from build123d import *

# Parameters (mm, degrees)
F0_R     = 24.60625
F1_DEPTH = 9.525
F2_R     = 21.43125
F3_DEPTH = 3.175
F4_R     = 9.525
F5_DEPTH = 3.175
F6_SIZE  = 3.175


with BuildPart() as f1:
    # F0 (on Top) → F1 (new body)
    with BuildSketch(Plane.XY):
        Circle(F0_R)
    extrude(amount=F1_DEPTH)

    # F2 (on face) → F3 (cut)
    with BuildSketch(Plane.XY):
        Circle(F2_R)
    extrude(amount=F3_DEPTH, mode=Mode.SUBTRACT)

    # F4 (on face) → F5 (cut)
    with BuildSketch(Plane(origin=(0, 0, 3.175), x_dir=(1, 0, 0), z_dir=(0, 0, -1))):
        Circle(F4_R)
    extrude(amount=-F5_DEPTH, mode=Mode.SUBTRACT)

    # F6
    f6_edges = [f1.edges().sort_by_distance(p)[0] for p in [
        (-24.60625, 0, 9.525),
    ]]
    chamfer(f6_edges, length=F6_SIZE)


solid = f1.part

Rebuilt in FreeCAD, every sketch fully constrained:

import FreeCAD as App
import Part
import Sketcher
from FreeCAD import Vector
Q = App.Units.Quantity


def edges_at(feature, points):
    """Names of the edges that pass closest to the given points."""
    edges = feature.Shape.Edges
    near = lambda p: min(range(len(edges)), key=lambda i: edges[i].distToShape(Part.Vertex(*p))[0])
    return sorted({f"Edge{near(p) + 1}" for p in points})

doc = App.newDocument("Part")
body = doc.addObject("PartDesign::Body", "Body")

# Sketch on XY plane
sketch1 = body.newObject("Sketcher::SketchObject", "Sketch")
sketch1.AttachmentSupport = (doc.getObject("XY_Plane"), [""])
sketch1.MapMode = "FlatFace"
sketch1.addGeometry(Part.Circle(Vector(0, 0, 0), Vector(0, 0, 1), 25), False)
sketch1.addConstraint([
    Sketcher.Constraint("Coincident", 0, 3, -1, 1),
    Sketcher.Constraint("Diameter", 0, Q("1.9375 in")),
])
pad1 = body.newObject("PartDesign::Pad", "Pad")
pad1.Profile = sketch1
pad1.Length = Q("0.375 in")

# Sketch on XY plane
sketch2 = body.newObject("Sketcher::SketchObject", "Sketch001")
sketch2.AttachmentSupport = (doc.getObject("XY_Plane"), [""])
sketch2.MapMode = "FlatFace"
sketch2.addGeometry(Part.Circle(Vector(0, 0, 0), Vector(0, 0, 1), 21), False)
sketch2.addConstraint([
    Sketcher.Constraint("Coincident", 0, 3, -1, 1),
    Sketcher.Constraint("Diameter", 0, Q("1.6875 in")),
])
pocket1 = body.newObject("PartDesign::Pocket", "Pocket")
pocket1.Profile = sketch2
pocket1.Length = Q("0.125 in")
pocket1.Reversed = True

# Sketch on XY plane
sketch3 = body.newObject("Sketcher::SketchObject", "Sketch002")
sketch3.AttachmentSupport = (doc.getObject("XY_Plane"), [""])
sketch3.MapMode = "FlatFace"
sketch3.AttachmentOffset = App.Placement(Vector(0, 0, 0.125 * 25.4), App.Rotation())
sketch3.addGeometry(Part.Circle(Vector(0, 0, 0), Vector(0, 0, 1), 10), False)
sketch3.addConstraint([
    Sketcher.Constraint("Coincident", 0, 3, -1, 1),
    Sketcher.Constraint("Diameter", 0, Q("0.75 in")),
])
pocket2 = body.newObject("PartDesign::Pocket", "Pocket001")
pocket2.Profile = sketch3
pocket2.Length = Q("0.125 in")
pocket2.Reversed = True
doc.recompute()

chamfer = body.newObject("PartDesign::Chamfer", "Chamfer")
chamfer.Base = (pocket2, edges_at(pocket2, [(-24.606, 0, 9.525)]))
chamfer.Size = Q("0.125 in")

doc.recompute()
